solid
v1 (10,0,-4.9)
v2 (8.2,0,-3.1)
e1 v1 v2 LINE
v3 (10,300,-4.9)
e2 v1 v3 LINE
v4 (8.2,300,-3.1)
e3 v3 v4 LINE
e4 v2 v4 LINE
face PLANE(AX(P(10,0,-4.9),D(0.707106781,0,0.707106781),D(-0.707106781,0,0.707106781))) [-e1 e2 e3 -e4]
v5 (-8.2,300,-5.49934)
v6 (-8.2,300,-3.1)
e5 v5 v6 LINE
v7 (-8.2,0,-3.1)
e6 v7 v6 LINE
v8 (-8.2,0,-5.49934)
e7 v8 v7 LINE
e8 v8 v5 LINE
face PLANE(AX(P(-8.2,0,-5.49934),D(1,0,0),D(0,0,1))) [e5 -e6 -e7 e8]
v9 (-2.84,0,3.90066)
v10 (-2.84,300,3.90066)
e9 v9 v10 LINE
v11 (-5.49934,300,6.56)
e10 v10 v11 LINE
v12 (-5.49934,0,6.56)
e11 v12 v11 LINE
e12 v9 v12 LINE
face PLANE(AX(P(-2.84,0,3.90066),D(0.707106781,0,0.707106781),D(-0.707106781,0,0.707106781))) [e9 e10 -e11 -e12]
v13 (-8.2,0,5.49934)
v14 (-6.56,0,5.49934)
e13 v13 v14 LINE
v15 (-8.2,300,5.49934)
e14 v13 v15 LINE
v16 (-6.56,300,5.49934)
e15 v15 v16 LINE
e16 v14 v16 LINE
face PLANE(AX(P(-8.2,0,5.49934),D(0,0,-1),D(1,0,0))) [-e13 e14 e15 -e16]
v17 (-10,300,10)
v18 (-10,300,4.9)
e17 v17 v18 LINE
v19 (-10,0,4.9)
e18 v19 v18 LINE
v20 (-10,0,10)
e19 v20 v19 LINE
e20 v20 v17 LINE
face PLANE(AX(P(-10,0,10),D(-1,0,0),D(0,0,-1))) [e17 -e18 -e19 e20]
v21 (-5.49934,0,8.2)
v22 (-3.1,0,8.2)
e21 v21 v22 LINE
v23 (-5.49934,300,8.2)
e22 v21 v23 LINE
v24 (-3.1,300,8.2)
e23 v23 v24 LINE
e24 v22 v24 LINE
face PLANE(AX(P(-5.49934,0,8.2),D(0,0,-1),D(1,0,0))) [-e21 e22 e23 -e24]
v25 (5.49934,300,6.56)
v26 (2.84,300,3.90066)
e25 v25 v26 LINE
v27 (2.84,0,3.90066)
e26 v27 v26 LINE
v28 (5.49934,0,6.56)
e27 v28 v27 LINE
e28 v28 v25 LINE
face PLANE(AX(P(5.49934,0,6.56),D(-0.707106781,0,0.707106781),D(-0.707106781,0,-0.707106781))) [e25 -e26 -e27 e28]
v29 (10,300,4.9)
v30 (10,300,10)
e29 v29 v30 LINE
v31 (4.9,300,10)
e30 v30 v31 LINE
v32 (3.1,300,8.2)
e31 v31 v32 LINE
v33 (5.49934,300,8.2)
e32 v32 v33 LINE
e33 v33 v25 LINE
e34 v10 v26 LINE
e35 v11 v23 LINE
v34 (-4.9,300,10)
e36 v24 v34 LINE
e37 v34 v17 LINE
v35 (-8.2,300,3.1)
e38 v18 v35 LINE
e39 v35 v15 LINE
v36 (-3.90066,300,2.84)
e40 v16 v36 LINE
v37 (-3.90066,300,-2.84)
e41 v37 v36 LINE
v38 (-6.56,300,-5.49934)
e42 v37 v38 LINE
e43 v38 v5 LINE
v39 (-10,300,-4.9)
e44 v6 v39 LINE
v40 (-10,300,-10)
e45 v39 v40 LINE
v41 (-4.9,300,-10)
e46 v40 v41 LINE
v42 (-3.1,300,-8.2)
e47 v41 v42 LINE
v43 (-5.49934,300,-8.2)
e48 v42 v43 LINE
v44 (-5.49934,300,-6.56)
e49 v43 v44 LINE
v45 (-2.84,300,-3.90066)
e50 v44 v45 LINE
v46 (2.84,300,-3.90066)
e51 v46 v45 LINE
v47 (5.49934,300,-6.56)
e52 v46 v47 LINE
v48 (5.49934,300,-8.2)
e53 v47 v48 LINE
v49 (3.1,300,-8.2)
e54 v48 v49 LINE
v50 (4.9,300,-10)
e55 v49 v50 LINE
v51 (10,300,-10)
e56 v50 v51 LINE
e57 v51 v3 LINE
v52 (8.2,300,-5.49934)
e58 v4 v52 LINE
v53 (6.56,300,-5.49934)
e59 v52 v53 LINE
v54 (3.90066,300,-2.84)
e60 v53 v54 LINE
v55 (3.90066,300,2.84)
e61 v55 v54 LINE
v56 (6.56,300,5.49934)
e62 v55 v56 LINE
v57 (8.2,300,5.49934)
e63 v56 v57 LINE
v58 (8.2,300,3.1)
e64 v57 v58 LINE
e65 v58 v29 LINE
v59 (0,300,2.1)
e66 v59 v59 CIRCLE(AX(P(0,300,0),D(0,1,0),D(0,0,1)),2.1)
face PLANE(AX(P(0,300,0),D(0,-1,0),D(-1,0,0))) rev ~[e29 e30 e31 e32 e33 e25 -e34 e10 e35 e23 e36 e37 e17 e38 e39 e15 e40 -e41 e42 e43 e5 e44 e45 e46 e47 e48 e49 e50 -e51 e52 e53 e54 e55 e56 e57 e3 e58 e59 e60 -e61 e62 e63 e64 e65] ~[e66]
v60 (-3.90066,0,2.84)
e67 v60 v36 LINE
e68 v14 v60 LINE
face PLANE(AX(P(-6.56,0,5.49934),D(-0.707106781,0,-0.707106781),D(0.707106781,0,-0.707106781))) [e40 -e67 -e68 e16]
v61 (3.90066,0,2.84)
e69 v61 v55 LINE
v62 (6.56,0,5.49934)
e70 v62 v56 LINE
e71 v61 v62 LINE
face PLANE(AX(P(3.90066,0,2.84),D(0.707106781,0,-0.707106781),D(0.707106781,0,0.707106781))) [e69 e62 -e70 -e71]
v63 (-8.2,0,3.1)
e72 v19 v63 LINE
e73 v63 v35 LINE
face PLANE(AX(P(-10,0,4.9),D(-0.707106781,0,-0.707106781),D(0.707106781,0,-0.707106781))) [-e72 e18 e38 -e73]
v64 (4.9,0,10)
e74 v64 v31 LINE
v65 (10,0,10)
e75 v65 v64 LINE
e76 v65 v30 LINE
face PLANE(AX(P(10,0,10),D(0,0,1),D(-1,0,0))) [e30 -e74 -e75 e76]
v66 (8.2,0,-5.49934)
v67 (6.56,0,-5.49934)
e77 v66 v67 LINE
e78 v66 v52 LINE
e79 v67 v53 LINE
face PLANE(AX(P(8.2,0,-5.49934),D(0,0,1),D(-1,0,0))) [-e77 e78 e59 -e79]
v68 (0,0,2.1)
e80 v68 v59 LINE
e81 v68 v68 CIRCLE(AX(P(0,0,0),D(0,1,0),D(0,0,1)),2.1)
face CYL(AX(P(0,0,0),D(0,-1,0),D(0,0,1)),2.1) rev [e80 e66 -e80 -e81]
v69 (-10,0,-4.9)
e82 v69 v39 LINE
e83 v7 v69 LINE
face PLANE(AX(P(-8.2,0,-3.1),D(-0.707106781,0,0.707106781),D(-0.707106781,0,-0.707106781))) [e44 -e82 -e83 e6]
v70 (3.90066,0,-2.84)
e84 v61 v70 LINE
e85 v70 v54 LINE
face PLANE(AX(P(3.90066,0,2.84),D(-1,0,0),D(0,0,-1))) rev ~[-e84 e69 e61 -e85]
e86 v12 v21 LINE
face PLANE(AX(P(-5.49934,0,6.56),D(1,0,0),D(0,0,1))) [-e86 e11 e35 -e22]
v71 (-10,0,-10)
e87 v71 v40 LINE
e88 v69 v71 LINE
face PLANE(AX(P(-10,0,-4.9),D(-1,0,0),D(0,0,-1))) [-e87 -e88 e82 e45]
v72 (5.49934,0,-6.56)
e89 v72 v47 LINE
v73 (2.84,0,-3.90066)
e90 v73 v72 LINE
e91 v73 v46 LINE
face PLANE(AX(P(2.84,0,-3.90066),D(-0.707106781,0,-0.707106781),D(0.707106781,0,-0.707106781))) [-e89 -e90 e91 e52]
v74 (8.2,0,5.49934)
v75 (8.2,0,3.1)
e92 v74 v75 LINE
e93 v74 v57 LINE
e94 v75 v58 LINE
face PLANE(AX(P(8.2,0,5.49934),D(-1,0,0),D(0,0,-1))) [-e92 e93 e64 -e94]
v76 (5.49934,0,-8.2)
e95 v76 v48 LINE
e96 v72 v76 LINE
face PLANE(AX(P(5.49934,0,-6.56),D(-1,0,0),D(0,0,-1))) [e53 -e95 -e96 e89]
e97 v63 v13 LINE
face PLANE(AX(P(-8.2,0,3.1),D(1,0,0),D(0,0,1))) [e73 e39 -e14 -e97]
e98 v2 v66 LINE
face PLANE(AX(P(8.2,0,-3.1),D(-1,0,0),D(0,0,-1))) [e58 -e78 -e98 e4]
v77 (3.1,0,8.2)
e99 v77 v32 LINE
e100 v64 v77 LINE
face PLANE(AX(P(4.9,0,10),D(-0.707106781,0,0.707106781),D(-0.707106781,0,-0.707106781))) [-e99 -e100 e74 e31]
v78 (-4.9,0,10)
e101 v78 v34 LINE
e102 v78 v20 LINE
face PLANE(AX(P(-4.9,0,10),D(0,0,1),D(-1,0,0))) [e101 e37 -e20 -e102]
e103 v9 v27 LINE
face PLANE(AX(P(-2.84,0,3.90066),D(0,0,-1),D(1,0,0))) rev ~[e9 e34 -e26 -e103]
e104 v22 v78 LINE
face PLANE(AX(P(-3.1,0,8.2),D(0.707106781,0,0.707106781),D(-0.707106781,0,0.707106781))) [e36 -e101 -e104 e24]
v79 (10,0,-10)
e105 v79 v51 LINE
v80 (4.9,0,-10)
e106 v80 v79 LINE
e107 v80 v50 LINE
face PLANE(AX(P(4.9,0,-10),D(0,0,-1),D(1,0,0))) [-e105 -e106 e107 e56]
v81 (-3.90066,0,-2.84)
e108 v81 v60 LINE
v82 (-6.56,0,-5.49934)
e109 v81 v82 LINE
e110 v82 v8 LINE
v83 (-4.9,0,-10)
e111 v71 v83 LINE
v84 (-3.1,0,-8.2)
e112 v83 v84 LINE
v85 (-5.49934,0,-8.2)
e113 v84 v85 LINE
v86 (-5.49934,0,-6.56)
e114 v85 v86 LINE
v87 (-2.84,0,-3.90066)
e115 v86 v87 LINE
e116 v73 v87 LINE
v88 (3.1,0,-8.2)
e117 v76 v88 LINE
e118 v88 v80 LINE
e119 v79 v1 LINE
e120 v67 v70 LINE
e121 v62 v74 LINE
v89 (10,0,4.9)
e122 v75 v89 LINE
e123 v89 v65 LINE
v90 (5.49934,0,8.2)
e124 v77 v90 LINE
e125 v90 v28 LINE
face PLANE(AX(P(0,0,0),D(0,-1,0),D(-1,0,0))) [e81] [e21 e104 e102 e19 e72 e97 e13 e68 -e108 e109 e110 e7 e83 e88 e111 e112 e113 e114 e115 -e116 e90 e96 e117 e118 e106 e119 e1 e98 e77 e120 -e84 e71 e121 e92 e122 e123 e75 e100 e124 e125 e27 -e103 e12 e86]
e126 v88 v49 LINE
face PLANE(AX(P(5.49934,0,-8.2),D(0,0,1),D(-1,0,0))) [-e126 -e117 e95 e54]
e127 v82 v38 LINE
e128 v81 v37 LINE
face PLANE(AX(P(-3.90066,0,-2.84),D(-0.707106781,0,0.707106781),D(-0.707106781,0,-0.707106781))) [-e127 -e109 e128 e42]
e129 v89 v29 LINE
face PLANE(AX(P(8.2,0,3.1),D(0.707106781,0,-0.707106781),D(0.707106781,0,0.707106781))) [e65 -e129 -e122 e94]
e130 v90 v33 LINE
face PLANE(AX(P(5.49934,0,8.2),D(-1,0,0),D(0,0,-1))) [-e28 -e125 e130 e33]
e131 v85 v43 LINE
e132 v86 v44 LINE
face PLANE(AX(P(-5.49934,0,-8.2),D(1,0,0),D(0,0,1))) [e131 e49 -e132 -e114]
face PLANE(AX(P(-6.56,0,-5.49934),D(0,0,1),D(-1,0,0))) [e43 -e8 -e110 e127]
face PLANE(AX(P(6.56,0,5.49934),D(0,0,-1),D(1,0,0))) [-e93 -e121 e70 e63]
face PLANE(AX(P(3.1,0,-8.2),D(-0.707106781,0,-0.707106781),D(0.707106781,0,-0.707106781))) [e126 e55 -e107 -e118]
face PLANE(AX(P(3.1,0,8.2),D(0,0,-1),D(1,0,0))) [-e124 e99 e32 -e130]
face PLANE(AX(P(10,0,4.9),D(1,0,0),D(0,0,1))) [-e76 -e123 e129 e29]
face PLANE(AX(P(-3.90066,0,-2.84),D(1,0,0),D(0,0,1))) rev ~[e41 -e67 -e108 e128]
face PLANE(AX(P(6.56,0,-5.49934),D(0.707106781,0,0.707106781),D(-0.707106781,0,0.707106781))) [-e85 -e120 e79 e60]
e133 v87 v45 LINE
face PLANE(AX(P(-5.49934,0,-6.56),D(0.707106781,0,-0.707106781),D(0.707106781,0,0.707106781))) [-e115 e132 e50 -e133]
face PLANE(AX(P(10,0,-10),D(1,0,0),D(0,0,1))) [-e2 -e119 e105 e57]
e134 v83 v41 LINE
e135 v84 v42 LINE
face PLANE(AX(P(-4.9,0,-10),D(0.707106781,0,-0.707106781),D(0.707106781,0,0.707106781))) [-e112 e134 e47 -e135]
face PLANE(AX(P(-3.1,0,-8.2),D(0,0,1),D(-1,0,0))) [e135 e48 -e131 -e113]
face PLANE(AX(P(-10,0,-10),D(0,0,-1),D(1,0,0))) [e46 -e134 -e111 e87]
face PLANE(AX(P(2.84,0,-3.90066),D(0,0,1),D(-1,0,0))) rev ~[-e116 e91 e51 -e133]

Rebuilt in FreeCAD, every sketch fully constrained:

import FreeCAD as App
import Part
import Sketcher
Q = App.Units.Quantity


def add_polygon(sketch, points):
    """Adds a closed chain of lines whose ends are joined by coincident constraints."""
    first, n = sketch.GeometryCount, len(points)
    for a, b in zip(points, points[1:] + points[:1]):
        sketch.addGeometry(Part.LineSegment(App.Vector(*a, 0), App.Vector(*b, 0)), False)
    for i in range(n):
        sketch.addConstraint(Sketcher.Constraint("Coincident", first + i, 2, first + (i + 1) % n, 1))

doc = App.newDocument("Part")
body = doc.addObject("PartDesign::Body", "Body")

# Sketch on XZ plane
sketch1 = body.newObject("Sketcher::SketchObject", "Sketch")
sketch1.AttachmentSupport = (doc.getObject("XZ_Plane"), [""])
sketch1.MapMode = "FlatFace"
add_polygon(sketch1, [(-3.9, -2.8), (-3.9, 2.8), (-6.6, 5.5), (-8.2, 5.5), (-8.2, 3.1), (-10, 4.9), (-10, 10), (-4.9, 10), (-3.1, 8.2), (-5.5, 8.2), (-5.5, 6.6), (-2.8, 3.9), (2.8, 3.9), (5.5, 6.6), (5.5, 8.2), (3.1, 8.2), (4.9, 10), (10, 10), (10, 4.9), (8.2, 3.1), (8.2, 5.5), (6.6, 5.5), (3.9, 2.8), (3.9, -2.8), (6.6, -5.5), (8.2, -5.5), (8.2, -3.1), (10, -4.9), (10, -10), (4.9, -10), (3.1, -8.2), (5.5, -8.2), (5.5, -6.6), (2.8, -3.9), (-2.8, -3.9), (-5.5, -6.6), (-5.5, -8.2), (-3.1, -8.2), (-4.9, -10), (-10, -10), (-10, -4.9), (-8.2, -3.1), (-8.2, -5.5), (-6.6, -5.5)])  # lines 0-43
sketch1.addGeometry(Part.Circle(App.Vector(0, 0, 0), App.Vector(0, 0, 1), 2.1), False)  # 44
sketch1.addConstraint([
    Sketcher.Constraint("Vertical", 0),
    Sketcher.Constraint("Horizontal", 2),
    Sketcher.Constraint("Vertical", 3),
    Sketcher.Constraint("Vertical", 5),
    Sketcher.Constraint("Horizontal", 6),
    Sketcher.Constraint("Horizontal", 8),
    Sketcher.Constraint("Vertical", 9),
    Sketcher.Constraint("Horizontal", 11),
    Sketcher.Constraint("Vertical", 13),
    Sketcher.Constraint("Horizontal", 14),
    Sketcher.Constraint("Horizontal", 16),
    Sketcher.Constraint("Vertical", 17),
    Sketcher.Constraint("Vertical", 19),
    Sketcher.Constraint("Horizontal", 20),
    Sketcher.Constraint("Vertical", 22),
    Sketcher.Constraint("Horizontal", 24),
    Sketcher.Constraint("Vertical", 25),
    Sketcher.Constraint("Vertical", 27),
    Sketcher.Constraint("Horizontal", 28),
    Sketcher.Constraint("Horizontal", 30),
    Sketcher.Constraint("Vertical", 31),
    Sketcher.Constraint("Horizontal", 33),
    Sketcher.Constraint("Vertical", 35),
    Sketcher.Constraint("Horizontal", 36),
    Sketcher.Constraint("Horizontal", 38),
    Sketcher.Constraint("Vertical", 39),
    Sketcher.Constraint("Vertical", 41),
    Sketcher.Constraint("Horizontal", 42),
    Sketcher.Constraint("Coincident", 44, 3, -1, 1),
    Sketcher.Constraint("Symmetric", 0, 2, 22, 2, -1, 1),
    Sketcher.Constraint("Symmetric", 1, 2, 23, 2, -1, 1),
    Sketcher.Constraint("Symmetric", 3, 2, 25, 2, -1, 1),
    Sketcher.Constraint("Symmetric", 4, 2, 26, 2, -1, 1),
    Sketcher.Constraint("Symmetric", 6, 2, 28, 2, -1, 1),
    Sketcher.Constraint("Symmetric", 7, 2, 29, 2, -1, 1),
    Sketcher.Constraint("Symmetric", 9, 2, 31, 2, -1, 1),
    Sketcher.Constraint("Symmetric", 10, 2, 32, 2, -1, 1),
    Sketcher.Constraint("Symmetric", 12, 2, 34, 2, -1, 1),
    Sketcher.Constraint("Symmetric", 14, 2, 36, 2, -1, 1),
    Sketcher.Constraint("Symmetric", 15, 2, 37, 2, -1, 1),
    Sketcher.Constraint("Symmetric", 17, 2, 39, 2, -1, 1),
    Sketcher.Constraint("Symmetric", 18, 2, 40, 2, -1, 1),
    Sketcher.Constraint("Symmetric", 20, 2, 42, 2, -1, 1),
    Sketcher.Constraint("Symmetric", 9, 2, 12, 2, -2),
    Sketcher.Constraint("Symmetric", 7, 2, 14, 2, -2),
    Sketcher.Constraint("Symmetric", 6, 2, 15, 2, -2),
    Sketcher.Constraint("Symmetric", 4, 2, 17, 2, -2),
    Sketcher.Constraint("Symmetric", 3, 2, 18, 2, -2),
    Sketcher.Constraint("Symmetric", 1, 2, 20, 2, -2),
    Sketcher.Constraint("Parallel", 1, 4),
    Sketcher.Constraint("Parallel", 4, 7),
    Sketcher.Constraint("Parallel", 7, 10),
    Sketcher.Constraint("Perpendicular", 10, 12),
    Sketcher.Constraint("Parallel", 12, 15),
    Sketcher.Constraint("Parallel", 18, 21),
    Sketcher.Constraint("Perpendicular", 32, 34),
    Sketcher.Constraint("Parallel", 40, 43),
    Sketcher.Constraint("Equal", 33, 0),
    Sketcher.Constraint("Equal", 36, 3),
    Sketcher.Constraint("Equal", 38, 5),
    Sketcher.Constraint("Equal", 42, 9),
    Sketcher.Constraint("Equal", 4, 7),
    Sketcher.Constraint("Equal", 1, 10),
    Sketcher.Constraint("Diameter", 44, Q("4.2 mm")),
    Sketcher.Constraint("DistanceX", 6, 1, 6, 2, Q("5.1 mm")),
    Sketcher.Constraint("DistanceX", 4, 2, -1, 1, Q("10 mm")),
    Sketcher.Constraint("DistanceX", 7, 2, 15, 2, Q("8 mm")),
    Sketcher.Constraint("DistanceX", 2, 2, 2, 1, Q("1.64 mm")),
    Sketcher.Constraint("DistanceX", 11, 1, 11, 2, Q("5.68 mm")),
    Sketcher.Constraint("DistanceX", 8, 2, 8, 1, Q("2.39934 mm")),
])
pad1 = body.newObject("PartDesign::Pad", "Pad")
pad1.Profile = sketch1
pad1.Length = 300
pad1.Reversed = True

doc.recompute()
